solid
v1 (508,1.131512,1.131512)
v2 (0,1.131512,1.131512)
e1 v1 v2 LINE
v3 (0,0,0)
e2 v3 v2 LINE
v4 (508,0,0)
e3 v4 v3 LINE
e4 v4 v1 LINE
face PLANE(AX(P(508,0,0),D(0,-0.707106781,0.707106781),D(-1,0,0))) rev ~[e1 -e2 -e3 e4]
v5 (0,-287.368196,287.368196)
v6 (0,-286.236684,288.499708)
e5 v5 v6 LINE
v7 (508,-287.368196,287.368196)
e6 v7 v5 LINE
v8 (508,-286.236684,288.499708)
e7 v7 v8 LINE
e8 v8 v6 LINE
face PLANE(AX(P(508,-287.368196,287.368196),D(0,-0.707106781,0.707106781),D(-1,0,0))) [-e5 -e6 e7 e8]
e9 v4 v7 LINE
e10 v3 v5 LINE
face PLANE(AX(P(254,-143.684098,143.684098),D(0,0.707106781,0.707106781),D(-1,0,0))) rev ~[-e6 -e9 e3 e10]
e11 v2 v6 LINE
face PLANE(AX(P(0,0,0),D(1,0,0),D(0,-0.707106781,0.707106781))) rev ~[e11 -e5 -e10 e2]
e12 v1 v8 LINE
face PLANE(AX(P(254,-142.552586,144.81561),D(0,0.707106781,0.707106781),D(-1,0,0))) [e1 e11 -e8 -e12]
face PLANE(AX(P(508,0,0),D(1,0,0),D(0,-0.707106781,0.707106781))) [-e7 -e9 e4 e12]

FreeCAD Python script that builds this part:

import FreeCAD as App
import Part
import Sketcher
from FreeCAD import Vector
Q = App.Units.Quantity


def add_polygon(sketch, points):
    """Adds a closed chain of lines whose ends are joined by coincident constraints."""
    first, n = sketch.GeometryCount, len(points)
    for a, b in zip(points, points[1:] + points[:1]):
        sketch.addGeometry(Part.LineSegment(App.Vector(*a, 0), App.Vector(*b, 0)), False)
    for i in range(n):
        sketch.addConstraint(Sketcher.Constraint("Coincident", first + i, 2, first + (i + 1) % n, 1))

doc = App.newDocument("Part")
body = doc.addObject("PartDesign::Body", "Body")

# Sketch on an angled plane
sketch1 = body.newObject("Sketcher::SketchObject", "Sketch")
sketch1.Placement = App.Placement(Vector(0, 0, 0), App.Rotation(Vector(-1, 0, 0), Vector(0, -0.707106781, 0.707106781), Vector(0, 0.707106781, 0.707106781), "ZXY"))
add_polygon(sketch1, [(-508, 406), (-508, 0), (0, 0), (0, 406)])  # lines 0-3
sketch1.addConstraint([
    Sketcher.Constraint("Vertical", 0),
    Sketcher.Constraint("Horizontal", 1),
    Sketcher.Constraint("Vertical", 2),
    Sketcher.Constraint("Horizontal", 3),
    Sketcher.Constraint("Coincident", 1, 2, -1, 1),
    Sketcher.Constraint("DistanceX", 1, 1, 1, 2, Q("20 in")),
    Sketcher.Constraint("DistanceY", 0, 2, 0, 1, Q("16 in")),
])
pad1 = body.newObject("PartDesign::Pad", "Pad")
pad1.Profile = sketch1
pad1.Length = Q("0.063 in")

doc.recompute()
